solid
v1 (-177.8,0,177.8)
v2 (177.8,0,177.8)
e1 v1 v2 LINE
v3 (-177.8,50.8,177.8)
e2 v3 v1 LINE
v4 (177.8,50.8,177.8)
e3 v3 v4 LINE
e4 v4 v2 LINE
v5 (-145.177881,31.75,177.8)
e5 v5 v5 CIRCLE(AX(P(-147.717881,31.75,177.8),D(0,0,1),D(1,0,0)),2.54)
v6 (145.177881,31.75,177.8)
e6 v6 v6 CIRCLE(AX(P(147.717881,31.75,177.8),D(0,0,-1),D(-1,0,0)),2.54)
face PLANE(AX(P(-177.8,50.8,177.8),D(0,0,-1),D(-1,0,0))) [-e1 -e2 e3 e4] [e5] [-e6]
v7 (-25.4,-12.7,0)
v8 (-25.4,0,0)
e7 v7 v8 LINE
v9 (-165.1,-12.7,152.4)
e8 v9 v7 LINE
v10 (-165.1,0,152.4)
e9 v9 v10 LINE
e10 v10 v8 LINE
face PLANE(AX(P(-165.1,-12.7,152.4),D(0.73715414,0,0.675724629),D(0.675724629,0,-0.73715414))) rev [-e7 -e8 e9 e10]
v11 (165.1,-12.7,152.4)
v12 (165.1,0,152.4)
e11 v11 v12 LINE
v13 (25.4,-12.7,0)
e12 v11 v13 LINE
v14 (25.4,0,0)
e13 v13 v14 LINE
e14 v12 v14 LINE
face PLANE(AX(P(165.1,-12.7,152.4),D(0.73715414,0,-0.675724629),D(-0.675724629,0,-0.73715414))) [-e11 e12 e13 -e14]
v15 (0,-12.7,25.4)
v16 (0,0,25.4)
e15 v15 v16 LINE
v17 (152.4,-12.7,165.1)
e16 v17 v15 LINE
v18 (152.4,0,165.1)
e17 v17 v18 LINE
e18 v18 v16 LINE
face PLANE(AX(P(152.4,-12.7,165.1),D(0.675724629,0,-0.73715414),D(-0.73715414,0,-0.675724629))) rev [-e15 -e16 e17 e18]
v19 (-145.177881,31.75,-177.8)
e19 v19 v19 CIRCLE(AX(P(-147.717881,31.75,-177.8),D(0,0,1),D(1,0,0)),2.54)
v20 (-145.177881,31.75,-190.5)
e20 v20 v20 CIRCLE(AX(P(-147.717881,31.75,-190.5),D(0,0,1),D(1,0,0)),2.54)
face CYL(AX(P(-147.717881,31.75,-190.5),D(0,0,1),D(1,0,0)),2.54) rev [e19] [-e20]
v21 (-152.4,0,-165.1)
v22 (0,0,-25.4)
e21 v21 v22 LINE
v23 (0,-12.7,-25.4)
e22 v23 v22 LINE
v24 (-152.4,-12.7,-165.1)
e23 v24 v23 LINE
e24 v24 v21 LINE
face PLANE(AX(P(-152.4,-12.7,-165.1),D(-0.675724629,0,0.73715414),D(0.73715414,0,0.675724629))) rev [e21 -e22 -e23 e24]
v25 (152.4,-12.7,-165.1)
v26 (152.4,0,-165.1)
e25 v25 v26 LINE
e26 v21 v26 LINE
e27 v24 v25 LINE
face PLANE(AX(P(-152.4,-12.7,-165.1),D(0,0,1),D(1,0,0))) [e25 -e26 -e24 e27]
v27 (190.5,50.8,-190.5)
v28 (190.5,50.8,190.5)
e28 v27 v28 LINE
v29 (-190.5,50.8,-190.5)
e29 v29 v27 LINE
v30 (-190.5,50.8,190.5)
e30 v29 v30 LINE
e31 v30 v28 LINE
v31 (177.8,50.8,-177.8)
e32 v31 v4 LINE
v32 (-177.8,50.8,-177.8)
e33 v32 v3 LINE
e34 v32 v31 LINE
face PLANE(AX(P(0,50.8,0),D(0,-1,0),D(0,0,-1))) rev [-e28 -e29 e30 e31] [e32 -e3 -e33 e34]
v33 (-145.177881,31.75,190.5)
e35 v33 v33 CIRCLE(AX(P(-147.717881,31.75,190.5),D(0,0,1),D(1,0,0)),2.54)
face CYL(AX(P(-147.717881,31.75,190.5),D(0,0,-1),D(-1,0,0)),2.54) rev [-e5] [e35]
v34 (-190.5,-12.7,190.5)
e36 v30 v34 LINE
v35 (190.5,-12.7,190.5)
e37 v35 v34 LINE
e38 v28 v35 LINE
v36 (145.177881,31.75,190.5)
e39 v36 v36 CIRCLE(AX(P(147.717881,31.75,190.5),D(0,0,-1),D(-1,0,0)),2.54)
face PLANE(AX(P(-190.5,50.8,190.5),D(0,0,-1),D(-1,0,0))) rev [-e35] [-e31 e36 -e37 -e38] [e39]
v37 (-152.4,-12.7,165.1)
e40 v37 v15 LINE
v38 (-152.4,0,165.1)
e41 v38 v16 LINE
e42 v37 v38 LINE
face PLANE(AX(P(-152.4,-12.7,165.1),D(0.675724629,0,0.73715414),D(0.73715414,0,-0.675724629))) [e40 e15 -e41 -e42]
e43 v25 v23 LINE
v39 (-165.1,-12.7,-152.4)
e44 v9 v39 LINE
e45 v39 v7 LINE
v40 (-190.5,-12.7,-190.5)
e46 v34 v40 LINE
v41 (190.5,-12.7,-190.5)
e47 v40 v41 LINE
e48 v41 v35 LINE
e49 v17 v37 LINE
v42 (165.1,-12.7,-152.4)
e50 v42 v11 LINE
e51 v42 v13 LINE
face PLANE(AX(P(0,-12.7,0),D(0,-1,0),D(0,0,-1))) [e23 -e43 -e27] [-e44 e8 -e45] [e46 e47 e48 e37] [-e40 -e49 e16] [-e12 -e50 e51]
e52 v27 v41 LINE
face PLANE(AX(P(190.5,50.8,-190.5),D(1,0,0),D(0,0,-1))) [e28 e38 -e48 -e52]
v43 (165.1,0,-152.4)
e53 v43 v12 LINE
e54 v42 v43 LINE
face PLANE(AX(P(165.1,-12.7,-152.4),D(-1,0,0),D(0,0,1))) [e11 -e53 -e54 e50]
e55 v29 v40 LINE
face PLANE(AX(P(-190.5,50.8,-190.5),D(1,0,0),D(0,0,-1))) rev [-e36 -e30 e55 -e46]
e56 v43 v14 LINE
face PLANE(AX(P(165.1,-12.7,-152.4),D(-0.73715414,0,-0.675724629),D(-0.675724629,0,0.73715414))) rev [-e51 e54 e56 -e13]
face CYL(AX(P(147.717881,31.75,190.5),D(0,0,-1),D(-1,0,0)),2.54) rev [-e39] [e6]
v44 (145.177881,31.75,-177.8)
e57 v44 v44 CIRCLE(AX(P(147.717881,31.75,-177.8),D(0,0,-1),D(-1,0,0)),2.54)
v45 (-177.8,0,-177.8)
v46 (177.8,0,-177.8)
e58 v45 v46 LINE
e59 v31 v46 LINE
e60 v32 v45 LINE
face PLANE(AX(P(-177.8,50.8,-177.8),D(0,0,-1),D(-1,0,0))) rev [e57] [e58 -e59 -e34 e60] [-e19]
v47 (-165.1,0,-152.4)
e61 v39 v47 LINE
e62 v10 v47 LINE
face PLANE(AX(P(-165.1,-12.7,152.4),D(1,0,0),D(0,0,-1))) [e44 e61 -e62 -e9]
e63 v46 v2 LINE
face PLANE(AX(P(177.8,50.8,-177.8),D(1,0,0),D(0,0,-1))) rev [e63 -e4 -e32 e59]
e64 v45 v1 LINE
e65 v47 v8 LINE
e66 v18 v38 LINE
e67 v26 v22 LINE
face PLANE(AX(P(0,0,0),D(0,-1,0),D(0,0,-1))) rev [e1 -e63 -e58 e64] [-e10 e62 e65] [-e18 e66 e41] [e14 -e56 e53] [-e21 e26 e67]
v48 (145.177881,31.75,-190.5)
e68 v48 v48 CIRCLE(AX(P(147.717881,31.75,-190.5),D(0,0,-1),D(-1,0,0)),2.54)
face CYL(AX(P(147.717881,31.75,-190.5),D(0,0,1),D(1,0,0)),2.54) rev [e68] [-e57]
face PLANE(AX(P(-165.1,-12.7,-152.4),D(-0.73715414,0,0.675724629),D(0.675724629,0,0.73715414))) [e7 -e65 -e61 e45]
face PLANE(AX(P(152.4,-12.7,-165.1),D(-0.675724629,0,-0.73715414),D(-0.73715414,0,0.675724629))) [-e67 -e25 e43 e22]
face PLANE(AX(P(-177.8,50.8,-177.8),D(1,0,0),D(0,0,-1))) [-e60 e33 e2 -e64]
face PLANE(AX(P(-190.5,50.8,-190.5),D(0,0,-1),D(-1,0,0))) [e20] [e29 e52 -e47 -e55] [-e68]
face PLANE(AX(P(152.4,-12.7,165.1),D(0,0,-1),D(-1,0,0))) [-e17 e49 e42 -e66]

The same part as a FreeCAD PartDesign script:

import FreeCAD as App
import Part
import Sketcher
from FreeCAD import Vector
Q = App.Units.Quantity

doc = App.newDocument("Part")
body = doc.addObject("PartDesign::Body", "Body")

# Sketch on XZ plane
sketch1 = body.newObject("Sketcher::SketchObject", "Sketch")
sketch1.AttachmentSupport = (doc.getObject("XZ_Plane"), [""])
sketch1.MapMode = "FlatFace"
sketch1.addGeometry(Part.LineSegment(Vector(-190.5, -190.5, 0), Vector(-190.5, 190.5, 0)), False)
sketch1.addGeometry(Part.LineSegment(Vector(-190.5, 190.5, 0), Vector(190.5, 190.5, 0)), False)
sketch1.addGeometry(Part.LineSegment(Vector(190.5, 190.5, 0), Vector(190.5, -190.5, 0)), False)
sketch1.addGeometry(Part.LineSegment(Vector(190.5, -190.5, 0), Vector(-190.5, -190.5, 0)), False)
sketch1.addGeometry(Part.LineSegment(Vector(177.8, 177.8, 0), Vector(-177.8, 177.8, 0)), False)
sketch1.addGeometry(Part.LineSegment(Vector(-177.8, 177.8, 0), Vector(-177.8, -177.8, 0)), False)
sketch1.addGeometry(Part.LineSegment(Vector(-177.8, -177.8, 0), Vector(177.8, -177.8, 0)), False)
sketch1.addGeometry(Part.LineSegment(Vector(177.8, -177.8, 0), Vector(177.8, 177.8, 0)), False)
sketch1.addConstraint(Sketcher.Constraint("Coincident", 0, 2, 1, 1))
sketch1.addConstraint(Sketcher.Constraint("Coincident", 1, 2, 2, 1))
sketch1.addConstraint(Sketcher.Constraint("Coincident", 2, 2, 3, 1))
sketch1.addConstraint(Sketcher.Constraint("Coincident", 3, 2, 0, 1))
sketch1.addConstraint(Sketcher.Constraint("Coincident", 4, 2, 5, 1))
sketch1.addConstraint(Sketcher.Constraint("Coincident", 5, 2, 6, 1))
sketch1.addConstraint(Sketcher.Constraint("Coincident", 6, 2, 7, 1))
sketch1.addConstraint(Sketcher.Constraint("Coincident", 7, 2, 4, 1))
sketch1.addConstraint(Sketcher.Constraint("Vertical", 0))
sketch1.addConstraint(Sketcher.Constraint("Horizontal", 1))
sketch1.addConstraint(Sketcher.Constraint("Vertical", 2))
sketch1.addConstraint(Sketcher.Constraint("Horizontal", 3))
sketch1.addConstraint(Sketcher.Constraint("Horizontal", 4))
sketch1.addConstraint(Sketcher.Constraint("Vertical", 5))
sketch1.addConstraint(Sketcher.Constraint("Horizontal", 6))
sketch1.addConstraint(Sketcher.Constraint("Vertical", 7))
sketch1.addConstraint(Sketcher.Constraint("Symmetric", 0, 2, 2, 2, -1, 1))
sketch1.addConstraint(Sketcher.Constraint("Symmetric", 4, 2, 6, 2, -1, 1))
sketch1.addConstraint(Sketcher.Constraint("Equal", 3, 0))
sketch1.addConstraint(Sketcher.Constraint("Equal", 6, 5))
sketch1.addConstraint(Sketcher.Constraint("DistanceX", 1, 1, 1, 2, Q("15 in")))
sketch1.addConstraint(Sketcher.Constraint("DistanceX", 4, 2, 4, 1, Q("14 in")))
pad1 = body.newObject("PartDesign::Pad", "Pad")
pad1.Profile = sketch1
pad1.Length = Q("2 in")
pad1.Reversed = True

# Sketch on XY plane
sketch2 = body.newObject("Sketcher::SketchObject", "Sketch001")
sketch2.AttachmentSupport = (doc.getObject("XY_Plane"), [""])
sketch2.MapMode = "FlatFace"
sketch2.AttachmentOffset = App.Placement(Vector(0, 0, -7 * 25.4), App.Rotation())
sketch2.addGeometry(Part.Circle(Vector(-147.717881, 31.75, 0), Vector(0, 0, 1), 2.54), False)
sketch2.addConstraint(Sketcher.Constraint("Diameter", 0, Q("0.2 in")))
sketch2.addConstraint(Sketcher.Constraint("DistanceY", -1, 1, 0, 3, Q("1.25 in")))
sketch2.addConstraint(Sketcher.Constraint("DistanceX", 0, 3, -1, 1, 147.717881))
pocket1 = body.newObject("PartDesign::Pocket", "Pocket")
pocket1.Profile = sketch2
pocket1.Type = "ThroughAll"
doc.recompute()

mirrored = body.newObject("PartDesign::Mirrored", "Mirrored")
mirrored.Originals = [pocket1]
mirrored.MirrorPlane = (doc.getObject("XY_Plane"), [""])
body.Tip = mirrored
doc.recompute()

mirrored2 = body.newObject("PartDesign::Mirrored", "Mirrored001")
mirrored2.Originals = [pocket1]
mirrored2.MirrorPlane = (doc.getObject("YZ_Plane"), [""])
body.Tip = mirrored2

# Sketch on XY plane
sketch3 = body.newObject("Sketcher::SketchObject", "Sketch002")
sketch3.AttachmentSupport = (doc.getObject("XY_Plane"), [""])
sketch3.MapMode = "FlatFace"
sketch3.AttachmentOffset = App.Placement(Vector(0, 0, 7 * 25.4), App.Rotation())
sketch3.addGeometry(Part.Circle(Vector(147.717881, 31.75, 0), Vector(0, 0, 1), 2.54), False)
sketch3.addConstraint(Sketcher.Constraint("Diameter", 0, Q("0.2 in")))
sketch3.addConstraint(Sketcher.Constraint("DistanceY", -1, 1, 0, 3, Q("1.25 in")))
sketch3.addConstraint(Sketcher.Constraint("DistanceX", -1, 1, 0, 3, 147.717881))
pocket2 = body.newObject("PartDesign::Pocket", "Pocket001")
pocket2.Profile = sketch3
pocket2.Type = "ThroughAll"
pocket2.Reversed = True

# Sketch on XZ plane
sketch4 = body.newObject("Sketcher::SketchObject", "Sketch003")
sketch4.AttachmentSupport = (doc.getObject("XZ_Plane"), [""])
sketch4.MapMode = "FlatFace"
sketch4.addGeometry(Part.LineSegment(Vector(-190.5, 190.5, 0), Vector(-190.5, -190.5, 0)), False)
sketch4.addGeometry(Part.LineSegment(Vector(-190.5, -190.5, 0), Vector(190.5, -190.5, 0)), False)
sketch4.addGeometry(Part.LineSegment(Vector(190.5, -190.5, 0), Vector(190.5, 190.5, 0)), False)
sketch4.addGeometry(Part.LineSegment(Vector(190.5, 190.5, 0), Vector(-190.5, 190.5, 0)), False)
sketch4.addConstraint(Sketcher.Constraint("Coincident", 0, 2, 1, 1))
sketch4.addConstraint(Sketcher.Constraint("Coincident", 1, 2, 2, 1))
sketch4.addConstraint(Sketcher.Constraint("Coincident", 2, 2, 3, 1))
sketch4.addConstraint(Sketcher.Constraint("Coincident", 3, 2, 0, 1))
sketch4.addConstraint(Sketcher.Constraint("Vertical", 0))
sketch4.addConstraint(Sketcher.Constraint("Horizontal", 1))
sketch4.addConstraint(Sketcher.Constraint("Vertical", 2))
sketch4.addConstraint(Sketcher.Constraint("Horizontal", 3))
sketch4.addConstraint(Sketcher.Constraint("Symmetric", 0, 2, 2, 2, -1, 1))
sketch4.addConstraint(Sketcher.Constraint("Equal", 3, 0))
sketch4.addConstraint(Sketcher.Constraint("DistanceX", 1, 1, 1, 2, Q("15 in")))
pad2 = body.newObject("PartDesign::Pad", "Pad001")
pad2.Profile = sketch4
pad2.Length = Q("0.5 in")

# Sketch on XZ plane
sketch5 = body.newObject("Sketcher::SketchObject", "Sketch004")
sketch5.AttachmentSupport = (doc.getObject("XZ_Plane"), [""])
sketch5.MapMode = "FlatFace"
sketch5.addGeometry(Part.LineSegment(Vector(-152.4, -165.1, 0), Vector(0, -25.4, 0)), False)
sketch5.addGeometry(Part.LineSegment(Vector(0, -25.4, 0), Vector(152.4, -165.1, 0)), False)
sketch5.addGeometry(Part.LineSegment(Vector(152.4, -165.1, 0), Vector(-152.4, -165.1, 0)), False)
sketch5.addGeometry(Part.LineSegment(Vector(165.1, 152.4, 0), Vector(165.1, -152.4, 0)), False)
sketch5.addGeometry(Part.LineSegment(Vector(165.1, -152.4, 0), Vector(25.4, 0, 0)), False)
sketch5.addGeometry(Part.LineSegment(Vector(25.4, 0, 0), Vector(165.1, 152.4, 0)), False)
sketch5.addGeometry(Part.LineSegment(Vector(-152.4, 165.1, 0), Vector(152.4, 165.1, 0)), False)
sketch5.addGeometry(Part.LineSegment(Vector(152.4, 165.1, 0), Vector(0, 25.4, 0)), False)
sketch5.addGeometry(Part.LineSegment(Vector(0, 25.4, 0), Vector(-152.4, 165.1, 0)), False)
sketch5.addGeometry(Part.LineSegment(Vector(-165.1, -152.4, 0), Vector(-165.1, 152.4, 0)), False)
sketch5.addGeometry(Part.LineSegment(Vector(-165.1, 152.4, 0), Vector(-25.4, 0, 0)), False)
sketch5.addGeometry(Part.LineSegment(Vector(-25.4, 0, 0), Vector(-165.1, -152.4, 0)), False)
sketch5.addConstraint(Sketcher.Constraint("Coincident", 0, 2, 1, 1))
sketch5.addConstraint(Sketcher.Constraint("Coincident", 1, 2, 2, 1))
sketch5.addConstraint(Sketcher.Constraint("Coincident", 2, 2, 0, 1))
sketch5.addConstraint(Sketcher.Constraint("Coincident", 3, 2, 4, 1))
sketch5.addConstraint(Sketcher.Constraint("Coincident", 4, 2, 5, 1))
sketch5.addConstraint(Sketcher.Constraint("Coincident", 5, 2, 3, 1))
sketch5.addConstraint(Sketcher.Constraint("Coincident", 6, 2, 7, 1))
sketch5.addConstraint(Sketcher.Constraint("Coincident", 7, 2, 8, 1))
sketch5.addConstraint(Sketcher.Constraint("Coincident", 8, 2, 6, 1))
sketch5.addConstraint(Sketcher.Constraint("Coincident", 9, 2, 10, 1))
sketch5.addConstraint(Sketcher.Constraint("Coincident", 10, 2, 11, 1))
sketch5.addConstraint(Sketcher.Constraint("Coincident", 11, 2, 9, 1))
sketch5.addConstraint(Sketcher.Constraint("Horizontal", 2))
sketch5.addConstraint(Sketcher.Constraint("Vertical", 3))
sketch5.addConstraint(Sketcher.Constraint("Horizontal", 6))
sketch5.addConstraint(Sketcher.Constraint("Vertical", 9))
sketch5.addConstraint(Sketcher.Constraint("Symmetric", 2, 2, 6, 2, -1, 1))
sketch5.addConstraint(Sketcher.Constraint("Symmetric", 0, 2, 7, 2, -1, 1))
sketch5.addConstraint(Sketcher.Constraint("Symmetric", 3, 2, 9, 2, -1, 1))
sketch5.addConstraint(Sketcher.Constraint("Symmetric", 4, 2, 10, 2, -1, 1))
sketch5.addConstraint(Sketcher.Constraint("PointOnObject", 0, 2, -2))
sketch5.addConstraint(Sketcher.Constraint("PointOnObject", 4, 2, -1))
sketch5.addConstraint(Sketcher.Constraint("Perpendicular", 0, 4))
sketch5.addConstraint(Sketcher.Constraint("Perpendicular", 1, 5))
sketch5.addConstraint(Sketcher.Constraint("Perpendicular", 5, 8))
sketch5.addConstraint(Sketcher.Constraint("Perpendicular", 8, 11))
sketch5.addConstraint(Sketcher.Constraint("Horizontal", 5, 2, 9, 2))
sketch5.addConstraint(Sketcher.Constraint("Equal", 6, 3))
sketch5.addConstraint(Sketcher.Constraint("DistanceX", 2, 2, 2, 1, Q("12 in")))
sketch5.addConstraint(Sketcher.Constraint("DistanceY", 0, 2, -1, 1, Q("1 in")))
sketch5.addConstraint(Sketcher.Constraint("DistanceX", -1, 1, 4, 2, Q("1 in")))
sketch5.addConstraint(Sketcher.Constraint("DistanceY", 1, 2, 6, 2, Q("13 in")))
pocket3 = body.newObject("PartDesign::Pocket", "Pocket002")
pocket3.Profile = sketch5
pocket3.Type = "ThroughAll"
pocket3.Reversed = True

doc.recompute()
